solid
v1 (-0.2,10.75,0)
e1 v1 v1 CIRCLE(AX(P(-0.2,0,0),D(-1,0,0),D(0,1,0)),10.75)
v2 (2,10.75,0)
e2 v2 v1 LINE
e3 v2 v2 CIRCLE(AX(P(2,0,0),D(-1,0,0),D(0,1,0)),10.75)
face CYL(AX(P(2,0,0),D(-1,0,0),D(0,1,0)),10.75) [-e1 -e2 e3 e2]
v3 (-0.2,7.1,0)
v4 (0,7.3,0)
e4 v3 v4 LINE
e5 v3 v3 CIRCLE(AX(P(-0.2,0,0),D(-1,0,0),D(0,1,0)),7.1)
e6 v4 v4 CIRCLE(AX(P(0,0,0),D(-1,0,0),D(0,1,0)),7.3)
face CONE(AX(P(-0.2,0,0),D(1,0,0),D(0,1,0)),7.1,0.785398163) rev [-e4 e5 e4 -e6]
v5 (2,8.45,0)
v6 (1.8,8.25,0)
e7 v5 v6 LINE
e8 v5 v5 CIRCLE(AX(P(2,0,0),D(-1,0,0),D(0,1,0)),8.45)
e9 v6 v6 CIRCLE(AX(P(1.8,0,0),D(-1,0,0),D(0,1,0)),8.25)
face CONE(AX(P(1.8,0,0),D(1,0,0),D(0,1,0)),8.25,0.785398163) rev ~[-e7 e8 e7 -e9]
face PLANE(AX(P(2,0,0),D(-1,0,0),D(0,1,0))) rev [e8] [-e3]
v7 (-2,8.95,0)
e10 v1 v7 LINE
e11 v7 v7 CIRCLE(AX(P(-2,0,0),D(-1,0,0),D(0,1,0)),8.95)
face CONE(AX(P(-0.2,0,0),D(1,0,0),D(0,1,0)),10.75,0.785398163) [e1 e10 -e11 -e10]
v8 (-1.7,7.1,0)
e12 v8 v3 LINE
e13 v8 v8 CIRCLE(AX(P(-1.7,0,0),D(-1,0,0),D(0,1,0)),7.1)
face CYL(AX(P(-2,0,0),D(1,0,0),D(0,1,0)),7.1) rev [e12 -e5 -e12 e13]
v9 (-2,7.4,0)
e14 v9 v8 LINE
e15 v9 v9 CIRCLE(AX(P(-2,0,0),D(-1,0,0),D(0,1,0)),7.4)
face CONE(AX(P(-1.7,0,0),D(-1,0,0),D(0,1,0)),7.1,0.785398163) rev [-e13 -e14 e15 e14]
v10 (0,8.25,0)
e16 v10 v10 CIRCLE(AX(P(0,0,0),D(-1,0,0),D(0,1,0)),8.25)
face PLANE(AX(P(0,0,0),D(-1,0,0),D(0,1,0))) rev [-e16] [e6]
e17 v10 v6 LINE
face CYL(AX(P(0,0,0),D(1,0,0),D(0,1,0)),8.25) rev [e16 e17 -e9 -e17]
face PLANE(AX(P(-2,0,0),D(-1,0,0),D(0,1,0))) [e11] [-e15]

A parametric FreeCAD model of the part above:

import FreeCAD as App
import Part
import Sketcher
Q = App.Units.Quantity


def edges_at(feature, points):
    """Names of the edges that pass closest to the given points."""
    edges = feature.Shape.Edges
    near = lambda p: min(range(len(edges)), key=lambda i: edges[i].distToShape(Part.Vertex(*p))[0])
    return sorted({f"Edge{near(p) + 1}" for p in points})


def add_polygon(sketch, points):
    """Adds a closed chain of lines whose ends are joined by coincident constraints."""
    first, n = sketch.GeometryCount, len(points)
    for a, b in zip(points, points[1:] + points[:1]):
        sketch.addGeometry(Part.LineSegment(App.Vector(*a, 0), App.Vector(*b, 0)), False)
    for i in range(n):
        sketch.addConstraint(Sketcher.Constraint("Coincident", first + i, 2, first + (i + 1) % n, 1))

doc = App.newDocument("Part")
body = doc.addObject("PartDesign::Body", "Body")

sketch1 = body.newObject("Sketcher::SketchObject", "Sketch")
sketch1.AttachmentSupport = (doc.getObject("XY_Plane"), [""])
sketch1.MapMode = "FlatFace"
add_polygon(sketch1, [(-2, 7.1), (0, 7.1), (0, 8.2), (2, 8.2), (2, 10.8), (-2, 10.8)])
sketch1.addConstraint([
    Sketcher.Constraint("Horizontal", 0),
    Sketcher.Constraint("Vertical", 1),
    Sketcher.Constraint("Horizontal", 2),
    Sketcher.Constraint("Vertical", 3),
    Sketcher.Constraint("Horizontal", 4),
    Sketcher.Constraint("Vertical", 5),
    Sketcher.Constraint("PointOnObject", 0, 2, -2),
    Sketcher.Constraint("Equal", 0, 2),
    Sketcher.Constraint("DistanceX", 0, 1, 0, 2, Q("2 mm")),
    Sketcher.Constraint("DistanceY", 3, 1, 3, 2, Q("2.5 mm")),
    Sketcher.Constraint("DistanceY", 1, 1, 1, 2, Q("1.15 mm")),
    Sketcher.Constraint("DistanceY", -1, 1, 0, 2, Q("7.1 mm")),
])
revolution = body.newObject("PartDesign::Revolution", "Revolution")
revolution.Profile = sketch1
revolution.ReferenceAxis = (sketch1, ["H_Axis"])
revolution.Angle = 360
doc.recompute()

chamfer = body.newObject("PartDesign::Chamfer", "Chamfer")
chamfer.Base = (revolution, edges_at(revolution, [(-2, -10.75, 0)]))
chamfer.Size = 1.8
doc.recompute()

chamfer2 = body.newObject("PartDesign::Chamfer", "Chamfer001")
chamfer2.Base = (chamfer, edges_at(chamfer, [(-2, -7.1, 0)]))
chamfer2.Size = 0.3
doc.recompute()

chamfer3 = body.newObject("PartDesign::Chamfer", "Chamfer002")
chamfer3.Base = (chamfer2, edges_at(chamfer2, [(2, -8.25, 0), (0, -7.1, 0)]))
chamfer3.Size = 0.2

doc.recompute()
